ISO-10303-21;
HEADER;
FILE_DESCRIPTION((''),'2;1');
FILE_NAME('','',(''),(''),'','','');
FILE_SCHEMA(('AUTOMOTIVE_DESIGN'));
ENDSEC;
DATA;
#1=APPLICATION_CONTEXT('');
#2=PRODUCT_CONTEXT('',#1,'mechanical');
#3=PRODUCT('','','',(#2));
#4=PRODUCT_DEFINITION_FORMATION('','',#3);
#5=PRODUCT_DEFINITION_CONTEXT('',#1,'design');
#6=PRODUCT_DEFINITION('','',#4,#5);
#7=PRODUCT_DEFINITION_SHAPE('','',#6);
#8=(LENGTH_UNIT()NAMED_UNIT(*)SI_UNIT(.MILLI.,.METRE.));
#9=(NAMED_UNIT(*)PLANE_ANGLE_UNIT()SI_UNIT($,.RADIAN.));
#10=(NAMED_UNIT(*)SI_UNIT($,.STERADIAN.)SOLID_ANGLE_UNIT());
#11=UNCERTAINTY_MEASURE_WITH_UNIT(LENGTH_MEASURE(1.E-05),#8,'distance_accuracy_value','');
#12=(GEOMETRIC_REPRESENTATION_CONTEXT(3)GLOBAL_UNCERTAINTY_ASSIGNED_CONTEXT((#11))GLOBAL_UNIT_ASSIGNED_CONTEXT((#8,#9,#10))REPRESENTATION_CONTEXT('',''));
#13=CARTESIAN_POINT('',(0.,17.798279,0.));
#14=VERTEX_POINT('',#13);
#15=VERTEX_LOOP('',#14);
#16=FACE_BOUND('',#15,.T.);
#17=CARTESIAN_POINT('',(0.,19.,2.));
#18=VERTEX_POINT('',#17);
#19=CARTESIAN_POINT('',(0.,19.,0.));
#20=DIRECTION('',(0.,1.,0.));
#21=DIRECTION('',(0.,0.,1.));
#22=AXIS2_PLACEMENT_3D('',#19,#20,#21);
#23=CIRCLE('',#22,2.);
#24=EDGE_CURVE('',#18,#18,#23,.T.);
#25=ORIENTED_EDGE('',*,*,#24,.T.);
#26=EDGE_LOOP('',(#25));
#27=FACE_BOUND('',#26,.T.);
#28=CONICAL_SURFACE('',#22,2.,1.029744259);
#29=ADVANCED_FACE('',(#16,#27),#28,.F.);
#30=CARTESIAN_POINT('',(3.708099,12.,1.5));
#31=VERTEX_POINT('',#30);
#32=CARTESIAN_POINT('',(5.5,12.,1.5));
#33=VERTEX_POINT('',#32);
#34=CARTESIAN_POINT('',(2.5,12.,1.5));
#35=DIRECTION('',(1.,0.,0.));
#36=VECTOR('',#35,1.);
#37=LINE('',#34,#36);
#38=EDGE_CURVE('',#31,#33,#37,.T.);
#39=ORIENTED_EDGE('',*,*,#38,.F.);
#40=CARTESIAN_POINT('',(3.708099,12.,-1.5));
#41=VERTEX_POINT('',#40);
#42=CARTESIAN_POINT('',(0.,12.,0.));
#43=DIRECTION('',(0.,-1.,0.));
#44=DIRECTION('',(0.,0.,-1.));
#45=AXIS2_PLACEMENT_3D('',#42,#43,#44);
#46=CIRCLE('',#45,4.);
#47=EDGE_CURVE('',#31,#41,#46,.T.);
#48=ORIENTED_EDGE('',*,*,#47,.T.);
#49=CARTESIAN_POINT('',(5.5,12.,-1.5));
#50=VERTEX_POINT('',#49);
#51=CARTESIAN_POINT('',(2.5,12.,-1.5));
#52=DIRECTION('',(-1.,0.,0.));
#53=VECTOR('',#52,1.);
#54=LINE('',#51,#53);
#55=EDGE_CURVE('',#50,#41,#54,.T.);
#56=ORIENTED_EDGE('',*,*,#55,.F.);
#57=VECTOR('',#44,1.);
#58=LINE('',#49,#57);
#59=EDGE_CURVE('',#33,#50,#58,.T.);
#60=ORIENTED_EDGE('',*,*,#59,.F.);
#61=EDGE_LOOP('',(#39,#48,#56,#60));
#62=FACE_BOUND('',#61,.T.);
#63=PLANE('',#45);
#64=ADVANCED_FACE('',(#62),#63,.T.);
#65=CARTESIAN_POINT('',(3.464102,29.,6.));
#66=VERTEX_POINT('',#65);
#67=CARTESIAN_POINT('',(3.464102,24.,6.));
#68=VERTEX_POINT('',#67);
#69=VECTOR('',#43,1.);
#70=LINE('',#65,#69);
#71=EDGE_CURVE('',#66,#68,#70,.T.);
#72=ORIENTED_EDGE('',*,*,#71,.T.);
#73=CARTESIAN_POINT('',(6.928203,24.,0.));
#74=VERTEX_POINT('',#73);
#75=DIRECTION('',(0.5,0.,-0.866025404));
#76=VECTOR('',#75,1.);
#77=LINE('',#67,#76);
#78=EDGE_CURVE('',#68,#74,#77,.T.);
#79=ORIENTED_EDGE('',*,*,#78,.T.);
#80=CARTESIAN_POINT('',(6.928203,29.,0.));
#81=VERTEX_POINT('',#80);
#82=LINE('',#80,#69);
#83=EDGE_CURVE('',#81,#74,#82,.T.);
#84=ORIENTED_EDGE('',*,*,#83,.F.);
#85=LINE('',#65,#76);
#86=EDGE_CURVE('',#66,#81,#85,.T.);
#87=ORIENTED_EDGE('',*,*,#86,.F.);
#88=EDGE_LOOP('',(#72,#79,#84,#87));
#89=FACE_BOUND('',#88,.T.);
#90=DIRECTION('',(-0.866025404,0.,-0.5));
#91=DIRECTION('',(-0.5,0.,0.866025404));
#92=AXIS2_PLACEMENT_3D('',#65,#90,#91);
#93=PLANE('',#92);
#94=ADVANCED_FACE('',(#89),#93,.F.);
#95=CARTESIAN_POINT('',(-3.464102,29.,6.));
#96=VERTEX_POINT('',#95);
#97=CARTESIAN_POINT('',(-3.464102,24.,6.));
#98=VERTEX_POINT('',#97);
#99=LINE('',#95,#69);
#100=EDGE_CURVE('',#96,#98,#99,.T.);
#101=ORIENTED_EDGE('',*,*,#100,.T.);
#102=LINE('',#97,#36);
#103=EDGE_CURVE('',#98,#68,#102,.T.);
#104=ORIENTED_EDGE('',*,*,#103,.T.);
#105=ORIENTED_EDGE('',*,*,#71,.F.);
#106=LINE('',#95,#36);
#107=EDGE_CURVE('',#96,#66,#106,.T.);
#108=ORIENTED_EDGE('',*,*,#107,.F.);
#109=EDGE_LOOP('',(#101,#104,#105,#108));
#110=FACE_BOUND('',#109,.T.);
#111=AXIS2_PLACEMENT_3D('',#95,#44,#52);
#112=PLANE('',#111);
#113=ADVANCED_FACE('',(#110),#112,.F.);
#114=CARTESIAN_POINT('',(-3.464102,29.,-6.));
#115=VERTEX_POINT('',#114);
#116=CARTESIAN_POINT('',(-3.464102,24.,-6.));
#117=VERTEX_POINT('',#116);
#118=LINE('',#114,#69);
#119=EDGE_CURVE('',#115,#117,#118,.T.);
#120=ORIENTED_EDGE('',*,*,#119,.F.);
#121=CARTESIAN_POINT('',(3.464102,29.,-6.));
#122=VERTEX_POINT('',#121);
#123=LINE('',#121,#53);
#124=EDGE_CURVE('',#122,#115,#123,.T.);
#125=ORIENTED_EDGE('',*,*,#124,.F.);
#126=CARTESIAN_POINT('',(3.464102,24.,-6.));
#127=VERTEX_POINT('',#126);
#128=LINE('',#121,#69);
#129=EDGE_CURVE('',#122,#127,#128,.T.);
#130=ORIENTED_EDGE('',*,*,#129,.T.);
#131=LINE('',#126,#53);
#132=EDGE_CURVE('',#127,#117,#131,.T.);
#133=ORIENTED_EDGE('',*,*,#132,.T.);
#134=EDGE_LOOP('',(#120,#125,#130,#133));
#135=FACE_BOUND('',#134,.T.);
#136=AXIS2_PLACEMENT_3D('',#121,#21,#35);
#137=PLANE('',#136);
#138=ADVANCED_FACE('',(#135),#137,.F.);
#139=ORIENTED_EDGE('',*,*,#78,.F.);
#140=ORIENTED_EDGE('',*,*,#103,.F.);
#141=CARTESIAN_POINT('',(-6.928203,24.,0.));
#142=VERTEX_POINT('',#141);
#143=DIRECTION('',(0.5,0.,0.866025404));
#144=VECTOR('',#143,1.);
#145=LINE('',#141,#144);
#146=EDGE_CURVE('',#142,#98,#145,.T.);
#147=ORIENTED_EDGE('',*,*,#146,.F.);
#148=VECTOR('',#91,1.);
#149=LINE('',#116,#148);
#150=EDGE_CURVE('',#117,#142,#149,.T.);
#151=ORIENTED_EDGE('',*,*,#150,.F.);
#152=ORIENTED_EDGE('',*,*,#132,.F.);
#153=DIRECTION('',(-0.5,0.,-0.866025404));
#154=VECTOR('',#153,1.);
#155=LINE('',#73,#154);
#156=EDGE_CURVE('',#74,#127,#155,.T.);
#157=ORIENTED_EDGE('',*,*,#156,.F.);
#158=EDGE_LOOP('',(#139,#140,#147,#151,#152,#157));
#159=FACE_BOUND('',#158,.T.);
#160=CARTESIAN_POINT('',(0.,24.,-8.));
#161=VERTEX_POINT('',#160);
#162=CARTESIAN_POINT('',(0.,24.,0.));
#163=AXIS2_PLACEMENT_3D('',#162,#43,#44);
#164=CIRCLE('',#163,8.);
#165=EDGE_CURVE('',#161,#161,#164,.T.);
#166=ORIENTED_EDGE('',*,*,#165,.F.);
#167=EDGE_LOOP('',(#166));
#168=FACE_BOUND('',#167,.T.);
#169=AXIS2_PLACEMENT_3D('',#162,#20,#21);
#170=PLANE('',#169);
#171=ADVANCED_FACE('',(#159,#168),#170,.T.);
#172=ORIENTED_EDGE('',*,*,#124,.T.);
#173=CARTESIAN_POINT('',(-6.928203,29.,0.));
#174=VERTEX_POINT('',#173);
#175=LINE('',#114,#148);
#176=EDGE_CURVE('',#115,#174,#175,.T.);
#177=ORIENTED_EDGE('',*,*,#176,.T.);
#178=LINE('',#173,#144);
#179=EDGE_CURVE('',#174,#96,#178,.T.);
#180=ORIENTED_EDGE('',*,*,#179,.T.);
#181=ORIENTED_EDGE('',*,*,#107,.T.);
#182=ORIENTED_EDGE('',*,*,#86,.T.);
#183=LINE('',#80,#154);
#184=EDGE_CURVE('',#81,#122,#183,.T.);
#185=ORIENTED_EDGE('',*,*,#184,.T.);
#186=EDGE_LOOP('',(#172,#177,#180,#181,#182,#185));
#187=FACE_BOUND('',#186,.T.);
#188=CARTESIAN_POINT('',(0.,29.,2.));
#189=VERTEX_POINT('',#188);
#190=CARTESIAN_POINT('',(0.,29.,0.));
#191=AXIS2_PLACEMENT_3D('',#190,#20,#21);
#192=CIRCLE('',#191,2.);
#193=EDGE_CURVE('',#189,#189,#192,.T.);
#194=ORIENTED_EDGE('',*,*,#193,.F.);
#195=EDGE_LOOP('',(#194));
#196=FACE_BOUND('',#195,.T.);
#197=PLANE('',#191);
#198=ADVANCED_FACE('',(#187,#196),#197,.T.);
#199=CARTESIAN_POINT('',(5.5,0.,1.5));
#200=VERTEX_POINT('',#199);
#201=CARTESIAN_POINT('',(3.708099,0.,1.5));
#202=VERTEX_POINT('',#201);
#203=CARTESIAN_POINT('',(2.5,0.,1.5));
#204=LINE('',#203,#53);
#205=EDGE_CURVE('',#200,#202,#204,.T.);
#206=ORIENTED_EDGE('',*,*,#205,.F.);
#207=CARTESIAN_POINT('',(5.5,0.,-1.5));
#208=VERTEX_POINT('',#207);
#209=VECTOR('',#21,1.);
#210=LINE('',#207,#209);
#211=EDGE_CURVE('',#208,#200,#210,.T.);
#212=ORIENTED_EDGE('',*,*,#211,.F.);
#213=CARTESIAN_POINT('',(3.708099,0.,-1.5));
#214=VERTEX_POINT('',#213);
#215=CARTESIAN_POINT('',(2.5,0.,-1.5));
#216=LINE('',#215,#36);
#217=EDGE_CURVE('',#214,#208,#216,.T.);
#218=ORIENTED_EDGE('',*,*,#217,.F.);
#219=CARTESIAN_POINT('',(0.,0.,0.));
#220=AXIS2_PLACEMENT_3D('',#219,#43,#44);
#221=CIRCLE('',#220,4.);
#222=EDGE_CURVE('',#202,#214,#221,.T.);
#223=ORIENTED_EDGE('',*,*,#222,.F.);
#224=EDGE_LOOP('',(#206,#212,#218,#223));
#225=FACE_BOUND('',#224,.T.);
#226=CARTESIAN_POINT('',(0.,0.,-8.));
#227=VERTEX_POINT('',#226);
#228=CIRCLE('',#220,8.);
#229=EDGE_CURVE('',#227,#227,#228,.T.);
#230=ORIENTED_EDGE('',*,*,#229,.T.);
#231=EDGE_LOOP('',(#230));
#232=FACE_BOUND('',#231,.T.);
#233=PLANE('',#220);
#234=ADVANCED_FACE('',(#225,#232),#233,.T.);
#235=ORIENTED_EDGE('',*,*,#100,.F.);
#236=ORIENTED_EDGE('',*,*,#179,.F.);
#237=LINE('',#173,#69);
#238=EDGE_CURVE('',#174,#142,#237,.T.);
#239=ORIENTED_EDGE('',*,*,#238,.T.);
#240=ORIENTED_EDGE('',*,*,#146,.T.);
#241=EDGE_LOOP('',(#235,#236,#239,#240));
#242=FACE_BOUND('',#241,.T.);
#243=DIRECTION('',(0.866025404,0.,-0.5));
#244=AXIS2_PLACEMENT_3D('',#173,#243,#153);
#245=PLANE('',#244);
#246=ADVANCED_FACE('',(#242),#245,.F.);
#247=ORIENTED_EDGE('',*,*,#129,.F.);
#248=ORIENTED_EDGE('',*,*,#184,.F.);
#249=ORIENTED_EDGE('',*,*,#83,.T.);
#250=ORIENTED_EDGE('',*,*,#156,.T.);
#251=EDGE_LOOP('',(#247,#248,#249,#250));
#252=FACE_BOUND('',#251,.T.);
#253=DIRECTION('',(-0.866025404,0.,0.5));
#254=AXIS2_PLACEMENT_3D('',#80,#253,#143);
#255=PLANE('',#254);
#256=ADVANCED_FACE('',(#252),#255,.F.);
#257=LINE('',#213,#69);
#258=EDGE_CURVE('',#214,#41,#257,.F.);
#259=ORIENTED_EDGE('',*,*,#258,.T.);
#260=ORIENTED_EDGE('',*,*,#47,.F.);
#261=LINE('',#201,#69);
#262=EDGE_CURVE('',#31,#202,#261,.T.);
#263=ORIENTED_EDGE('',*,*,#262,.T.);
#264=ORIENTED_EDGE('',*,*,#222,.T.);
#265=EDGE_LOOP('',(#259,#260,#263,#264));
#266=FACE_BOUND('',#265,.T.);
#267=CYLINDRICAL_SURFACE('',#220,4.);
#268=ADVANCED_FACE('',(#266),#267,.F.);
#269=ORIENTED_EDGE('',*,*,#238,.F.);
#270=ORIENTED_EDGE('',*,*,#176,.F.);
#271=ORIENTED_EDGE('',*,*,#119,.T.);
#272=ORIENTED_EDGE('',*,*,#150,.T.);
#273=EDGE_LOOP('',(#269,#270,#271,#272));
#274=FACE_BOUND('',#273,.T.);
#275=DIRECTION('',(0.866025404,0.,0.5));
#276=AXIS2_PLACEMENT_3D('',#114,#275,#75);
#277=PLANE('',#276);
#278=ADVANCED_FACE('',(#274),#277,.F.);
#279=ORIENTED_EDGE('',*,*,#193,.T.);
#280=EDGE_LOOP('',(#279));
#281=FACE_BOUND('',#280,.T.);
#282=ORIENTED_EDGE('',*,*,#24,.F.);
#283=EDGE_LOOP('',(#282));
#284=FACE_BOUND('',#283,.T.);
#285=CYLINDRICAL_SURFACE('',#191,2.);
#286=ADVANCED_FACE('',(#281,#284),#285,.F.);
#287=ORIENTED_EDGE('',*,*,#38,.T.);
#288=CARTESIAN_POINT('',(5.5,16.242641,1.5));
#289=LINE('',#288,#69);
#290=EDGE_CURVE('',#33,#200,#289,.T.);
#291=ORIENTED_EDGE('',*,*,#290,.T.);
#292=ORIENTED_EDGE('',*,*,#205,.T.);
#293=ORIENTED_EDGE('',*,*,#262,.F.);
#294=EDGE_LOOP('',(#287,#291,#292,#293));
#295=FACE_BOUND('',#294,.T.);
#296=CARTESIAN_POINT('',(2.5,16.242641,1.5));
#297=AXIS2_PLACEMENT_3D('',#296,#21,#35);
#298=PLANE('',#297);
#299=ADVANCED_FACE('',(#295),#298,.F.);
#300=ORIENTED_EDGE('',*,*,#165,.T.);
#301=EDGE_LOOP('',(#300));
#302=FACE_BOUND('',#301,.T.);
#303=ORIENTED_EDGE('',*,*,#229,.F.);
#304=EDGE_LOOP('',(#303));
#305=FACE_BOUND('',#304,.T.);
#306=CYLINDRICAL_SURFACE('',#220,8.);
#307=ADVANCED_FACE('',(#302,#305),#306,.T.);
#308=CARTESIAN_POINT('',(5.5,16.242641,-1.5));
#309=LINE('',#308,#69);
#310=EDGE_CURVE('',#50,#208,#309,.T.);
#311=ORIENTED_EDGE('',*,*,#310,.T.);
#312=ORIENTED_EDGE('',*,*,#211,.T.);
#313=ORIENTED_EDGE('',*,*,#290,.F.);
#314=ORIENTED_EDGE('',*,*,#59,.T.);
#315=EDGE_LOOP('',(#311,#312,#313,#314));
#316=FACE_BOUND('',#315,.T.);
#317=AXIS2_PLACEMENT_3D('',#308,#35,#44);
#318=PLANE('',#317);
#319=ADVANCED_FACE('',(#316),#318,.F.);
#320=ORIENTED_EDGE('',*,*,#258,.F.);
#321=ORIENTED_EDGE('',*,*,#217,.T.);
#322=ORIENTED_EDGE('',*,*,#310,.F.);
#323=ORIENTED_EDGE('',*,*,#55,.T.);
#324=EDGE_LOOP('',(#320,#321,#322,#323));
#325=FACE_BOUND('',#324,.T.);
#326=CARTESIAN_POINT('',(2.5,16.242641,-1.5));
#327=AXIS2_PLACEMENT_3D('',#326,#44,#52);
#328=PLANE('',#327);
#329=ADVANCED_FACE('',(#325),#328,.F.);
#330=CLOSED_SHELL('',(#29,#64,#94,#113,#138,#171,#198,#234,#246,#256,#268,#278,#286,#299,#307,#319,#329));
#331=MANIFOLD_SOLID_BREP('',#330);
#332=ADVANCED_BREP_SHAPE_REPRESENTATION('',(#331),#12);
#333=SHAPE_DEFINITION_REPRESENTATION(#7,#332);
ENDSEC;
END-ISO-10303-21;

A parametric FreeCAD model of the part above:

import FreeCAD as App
import Part
import Sketcher
Q = App.Units.Quantity

doc = App.newDocument("Part")
params = doc.addObject("Spreadsheet::Sheet", "Params")
for row, (alias, value) in enumerate([
    ("sketch1_width", "4 mm"),
    ("sketch1_height", "12 mm"),
    ("revolution_angle", "360 deg"),
    ("pad1_length", "5 mm"),
    ("sketch3_diameter", "4 mm"),
    ("hole_diameter", "4 mm"),
    ("hole_depth", "10 mm"),
    ("sketch4_width", "3 mm"),
    ("pocket1_length", "12 mm"),
], start=1):
    params.set(f"A{row}", alias)
    params.set(f"B{row}", "=" + value)
    params.setAlias(f"B{row}", alias)

body = doc.addObject("PartDesign::Body", "Body")

# Sketch on XY plane
sketch1 = body.newObject("Sketcher::SketchObject", "Sketch")
sketch1.AttachmentSupport = (doc.getObject("XY_Plane"), [""])
sketch1.MapMode = "FlatFace"
sketch1.addGeometry(Part.LineSegment(App.Vector(4, 12, 0), App.Vector(4, 0, 0)), False)
sketch1.addGeometry(Part.LineSegment(App.Vector(4, 0, 0), App.Vector(8, 0, 0)), False)
sketch1.addGeometry(Part.LineSegment(App.Vector(8, 0, 0), App.Vector(8, 24, 0)), False)
sketch1.addGeometry(Part.LineSegment(App.Vector(8, 24, 0), App.Vector(0, 24, 0)), False)
sketch1.addGeometry(Part.LineSegment(App.Vector(0, 24, 0), App.Vector(0, 12, 0)), False)
sketch1.addGeometry(Part.LineSegment(App.Vector(0, 12, 0), App.Vector(4, 12, 0)), False)
sketch1.addConstraint(Sketcher.Constraint("Coincident", 0, 2, 1, 1))
sketch1.addConstraint(Sketcher.Constraint("Coincident", 1, 2, 2, 1))
sketch1.addConstraint(Sketcher.Constraint("Coincident", 2, 2, 3, 1))
sketch1.addConstraint(Sketcher.Constraint("Coincident", 3, 2, 4, 1))
sketch1.addConstraint(Sketcher.Constraint("Coincident", 4, 2, 5, 1))
sketch1.addConstraint(Sketcher.Constraint("Coincident", 5, 2, 0, 1))
sketch1.addConstraint(Sketcher.Constraint("Vertical", 0))
sketch1.addConstraint(Sketcher.Constraint("Horizontal", 1))
sketch1.addConstraint(Sketcher.Constraint("Vertical", 2))
sketch1.addConstraint(Sketcher.Constraint("Horizontal", 3))
sketch1.addConstraint(Sketcher.Constraint("Vertical", 4))
sketch1.addConstraint(Sketcher.Constraint("Horizontal", 5))
sketch1.addConstraint(Sketcher.Constraint("PointOnObject", 0, 2, -1))
sketch1.addConstraint(Sketcher.Constraint("PointOnObject", 3, 2, -2))
sketch1.addConstraint(Sketcher.Constraint("Equal", 1, 5))
sketch1.addConstraint(Sketcher.Constraint("Equal", 0, 4))
sketch1.addConstraint(Sketcher.Constraint("DistanceX", 1, 1, 1, 2, 4.0))
sketch1.addConstraint(Sketcher.Constraint("DistanceY", 0, 2, 0, 1, 12.0))
sketch1.setExpression("Constraints[16]", "Params.sketch1_width")
sketch1.setExpression("Constraints[17]", "Params.sketch1_height")
revolution = body.newObject("PartDesign::Revolution", "Revolution")
revolution.Profile = sketch1
revolution.ReferenceAxis = (sketch1, ["V_Axis"])
revolution.setExpression("Angle", "Params.revolution_angle")

# Sketch on XZ plane
sketch2 = body.newObject("Sketcher::SketchObject", "Sketch001")
sketch2.AttachmentSupport = (doc.getObject("XZ_Plane"), [""])
sketch2.MapMode = "FlatFace"
sketch2.AttachmentOffset = App.Placement(App.Vector(0, 0, -24), App.Rotation())
sketch2.addGeometry(Part.LineSegment(App.Vector(6.928203, 0, 0), App.Vector(3.464102, -6, 0)), False)
sketch2.addGeometry(Part.LineSegment(App.Vector(3.464102, -6, 0), App.Vector(-3.464102, -6, 0)), False)
sketch2.addGeometry(Part.LineSegment(App.Vector(-3.464102, -6, 0), App.Vector(-6.928203, 0, 0)), False)
sketch2.addGeometry(Part.LineSegment(App.Vector(-6.928203, 0, 0), App.Vector(-3.464102, 6, 0)), False)
sketch2.addGeometry(Part.LineSegment(App.Vector(-3.464102, 6, 0), App.Vector(3.464102, 6, 0)), False)
sketch2.addGeometry(Part.LineSegment(App.Vector(3.464102, 6, 0), App.Vector(6.928203, 0, 0)), False)
sketch2.addConstraint(Sketcher.Constraint("Coincident", 0, 2, 1, 1))
sketch2.addConstraint(Sketcher.Constraint("Coincident", 1, 2, 2, 1))
sketch2.addConstraint(Sketcher.Constraint("Coincident", 2, 2, 3, 1))
sketch2.addConstraint(Sketcher.Constraint("Coincident", 3, 2, 4, 1))
sketch2.addConstraint(Sketcher.Constraint("Coincident", 4, 2, 5, 1))
sketch2.addConstraint(Sketcher.Constraint("Coincident", 5, 2, 0, 1))
sketch2.addConstraint(Sketcher.Constraint("Horizontal", 1))
sketch2.addConstraint(Sketcher.Constraint("Horizontal", 4))
sketch2.addConstraint(Sketcher.Constraint("Symmetric", 0, 2, 3, 2, -1, 1))
sketch2.addConstraint(Sketcher.Constraint("Symmetric", 2, 2, 5, 2, -1, 1))
sketch2.addConstraint(Sketcher.Constraint("PointOnObject", 2, 2, -1))
sketch2.addConstraint(Sketcher.Constraint("Parallel", 2, 5))
sketch2.addConstraint(Sketcher.Constraint("Vertical", 1, 2, 3, 2))
sketch2.addConstraint(Sketcher.Constraint("Angle", 0, Q("-120 deg")))
sketch2.addConstraint(Sketcher.Constraint("DistanceY", 0, 2, -1, 1, 6.0))
sketch2.addConstraint(Sketcher.Constraint("DistanceX", -1, 1, 0, 2, 3.464102))
pad1 = body.newObject("PartDesign::Pad", "Pad")
pad1.Profile = sketch2
pad1.setExpression("Length", "Params.pad1_length")
pad1.Reversed = True

# Sketch on XZ plane
sketch3 = body.newObject("Sketcher::SketchObject", "Sketch002")
sketch3.AttachmentSupport = (doc.getObject("XZ_Plane"), [""])
sketch3.MapMode = "FlatFace"
sketch3.AttachmentOffset = App.Placement(App.Vector(0, 0, -29), App.Rotation())
sketch3.addGeometry(Part.Circle(App.Vector(0, 0, 0), App.Vector(0, 0, 1), 2), False)
sketch3.addConstraint(Sketcher.Constraint("Coincident", 0, 3, -1, 1))
sketch3.addConstraint(Sketcher.Constraint("Diameter", 0, 4.0))
sketch3.setExpression("Constraints[1]", "Params.sketch3_diameter")
doc.recompute()
hole = body.newObject("PartDesign::Hole", "Hole")
hole.Profile = sketch3
hole.ThreadType = "None"
hole.setExpression("Diameter", "Params.hole_diameter")
hole.DepthType = "Dimension"
hole.setExpression("Depth", "Params.hole_depth")
hole.DrillPoint = "Angled"
hole.DrillPointAngle = 118
hole.Reversed = True

# Sketch on XZ plane
sketch4 = body.newObject("Sketcher::SketchObject", "Sketch003")
sketch4.AttachmentSupport = (doc.getObject("XZ_Plane"), [""])
sketch4.MapMode = "FlatFace"
sketch4.AttachmentOffset = App.Placement(App.Vector(0, 0, -12), App.Rotation())
sketch4.addGeometry(Part.LineSegment(App.Vector(2.5, 1.5, 0), App.Vector(2.5, -1.5, 0)), False)
sketch4.addGeometry(Part.LineSegment(App.Vector(2.5, -1.5, 0), App.Vector(5.5, -1.5, 0)), False)
sketch4.addGeometry(Part.LineSegment(App.Vector(5.5, -1.5, 0), App.Vector(5.5, 1.5, 0)), False)
sketch4.addGeometry(Part.LineSegment(App.Vector(5.5, 1.5, 0), App.Vector(2.5, 1.5, 0)), False)
sketch4.addConstraint(Sketcher.Constraint("Coincident", 0, 2, 1, 1))
sketch4.addConstraint(Sketcher.Constraint("Coincident", 1, 2, 2, 1))
sketch4.addConstraint(Sketcher.Constraint("Coincident", 2, 2, 3, 1))
sketch4.addConstraint(Sketcher.Constraint("Coincident", 3, 2, 0, 1))
sketch4.addConstraint(Sketcher.Constraint("Vertical", 0))
sketch4.addConstraint(Sketcher.Constraint("Horizontal", 1))
sketch4.addConstraint(Sketcher.Constraint("Vertical", 2))
sketch4.addConstraint(Sketcher.Constraint("Horizontal", 3))
sketch4.addConstraint(Sketcher.Constraint("Equal", 3, 0))
sketch4.addConstraint(Sketcher.Constraint("DistanceX", 1, 1, 1, 2, 3.0))
sketch4.addConstraint(Sketcher.Constraint("DistanceX", -1, 1, 0, 2, 2.5))
sketch4.addConstraint(Sketcher.Constraint("DistanceY", 0, 2, -1, 1, 1.5))
sketch4.setExpression("Constraints[9]", "Params.sketch4_width")
pocket1 = body.newObject("PartDesign::Pocket", "Pocket")
pocket1.Profile = sketch4
pocket1.setExpression("Length", "Params.pocket1_length")
pocket1.Reversed = True

doc.recompute()
